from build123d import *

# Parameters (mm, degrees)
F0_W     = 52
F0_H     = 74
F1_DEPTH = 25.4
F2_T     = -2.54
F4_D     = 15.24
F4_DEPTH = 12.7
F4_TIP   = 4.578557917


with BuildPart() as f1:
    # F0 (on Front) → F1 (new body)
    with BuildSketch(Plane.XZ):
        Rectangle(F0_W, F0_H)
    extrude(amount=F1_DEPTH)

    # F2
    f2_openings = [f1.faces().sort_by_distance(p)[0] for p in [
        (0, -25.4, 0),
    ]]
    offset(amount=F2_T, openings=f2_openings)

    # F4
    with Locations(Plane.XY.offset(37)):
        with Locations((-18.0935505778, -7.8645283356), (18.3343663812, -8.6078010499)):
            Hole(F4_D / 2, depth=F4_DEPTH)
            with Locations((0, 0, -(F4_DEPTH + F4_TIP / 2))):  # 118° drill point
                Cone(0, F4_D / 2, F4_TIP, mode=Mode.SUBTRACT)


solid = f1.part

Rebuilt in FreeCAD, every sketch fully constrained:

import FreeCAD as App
import Part
import Sketcher
Q = App.Units.Quantity


def faces_at(feature, points):
    """Names of the faces that lie closest to the given points."""
    faces = feature.Shape.Faces
    near = lambda p: min(range(len(faces)), key=lambda i: faces[i].distToShape(Part.Vertex(*p))[0])
    return sorted({f"Face{near(p) + 1}" for p in points})


def add_polygon(sketch, points):
    """Adds a closed chain of lines whose ends are joined by coincident constraints."""
    first, n = sketch.GeometryCount, len(points)
    for a, b in zip(points, points[1:] + points[:1]):
        sketch.addGeometry(Part.LineSegment(App.Vector(*a, 0), App.Vector(*b, 0)), False)
    for i in range(n):
        sketch.addConstraint(Sketcher.Constraint("Coincident", first + i, 2, first + (i + 1) % n, 1))

doc = App.newDocument("Part")
body = doc.addObject("PartDesign::Body", "Body")

# Sketch on XZ plane
sketch1 = doc.addObject("Sketcher::SketchObject", "Sketch")
body.addObject(sketch1)
sketch1.AttachmentSupport = (doc.XZ_Plane, [""])
sketch1.MapMode = "FlatFace"
add_polygon(sketch1, [(-26, 37), (-26, -37), (26, -37), (26, 37)])  # lines 0-3
sketch1.addConstraint([
    Sketcher.Constraint("Vertical", 0),
    Sketcher.Constraint("Horizontal", 1),
    Sketcher.Constraint("Vertical", 2),
    Sketcher.Constraint("Horizontal", 3),
    Sketcher.Constraint("Symmetric", 0, 2, 2, 2, -1, 1),
    Sketcher.Constraint("DistanceX", 1, 1, 1, 2, 52.0),
    Sketcher.Constraint("DistanceY", 0, 2, 0, 1, 74.0),
])
pad1 = doc.addObject("PartDesign::Pad", "Pad")
body.addObject(pad1)
pad1.Profile = sketch1
pad1.Length = Q("1 in")
doc.recompute()

thickness = doc.addObject("PartDesign::Thickness", "Thickness")
body.addObject(thickness)
thickness.Base = (pad1, faces_at(pad1, [(0, -25.4, 0)]))
thickness.Value = Q("0.1 in")
thickness.Reversed = True
thickness.Join = "Arc"

# Sketch on XY plane
sketch2 = doc.addObject("Sketcher::SketchObject", "Sketch001")
body.addObject(sketch2)
sketch2.AttachmentSupport = (doc.XY_Plane, [""])
sketch2.MapMode = "FlatFace"
sketch2.AttachmentOffset = App.Placement(App.Vector(0, 0, 37), App.Rotation())
sketch2.addGeometry([
    Part.Circle(App.Vector(-18.093551, -7.864528, 0), App.Vector(0, 0, 1), 7.62),
    Part.Circle(App.Vector(18.334366, -8.607801, 0), App.Vector(0, 0, 1), 7.62),
], False)
sketch2.addConstraint([
    Sketcher.Constraint("Equal", 0, 1),
    Sketcher.Constraint("Diameter", 0, Q("0.6 in")),
    Sketcher.Constraint("DistanceY", 1, 3, -1, 1, 8.607801),
    Sketcher.Constraint("DistanceX", 0, 3, -1, 1, 18.093551),
    Sketcher.Constraint("DistanceY", 0, 3, -1, 1, 7.864528),
    Sketcher.Constraint("DistanceX", -1, 1, 1, 3, 18.334366),
])
doc.recompute()
hole = doc.addObject("PartDesign::Hole", "Hole")
body.addObject(hole)
hole.Profile = sketch2
hole.ThreadType = "None"
hole.Diameter = Q("0.6 in")
hole.DepthType = "Dimension"
hole.Depth = Q("0.5 in")
hole.DrillPoint = "Angled"
hole.DrillPointAngle = 118

doc.recompute()
